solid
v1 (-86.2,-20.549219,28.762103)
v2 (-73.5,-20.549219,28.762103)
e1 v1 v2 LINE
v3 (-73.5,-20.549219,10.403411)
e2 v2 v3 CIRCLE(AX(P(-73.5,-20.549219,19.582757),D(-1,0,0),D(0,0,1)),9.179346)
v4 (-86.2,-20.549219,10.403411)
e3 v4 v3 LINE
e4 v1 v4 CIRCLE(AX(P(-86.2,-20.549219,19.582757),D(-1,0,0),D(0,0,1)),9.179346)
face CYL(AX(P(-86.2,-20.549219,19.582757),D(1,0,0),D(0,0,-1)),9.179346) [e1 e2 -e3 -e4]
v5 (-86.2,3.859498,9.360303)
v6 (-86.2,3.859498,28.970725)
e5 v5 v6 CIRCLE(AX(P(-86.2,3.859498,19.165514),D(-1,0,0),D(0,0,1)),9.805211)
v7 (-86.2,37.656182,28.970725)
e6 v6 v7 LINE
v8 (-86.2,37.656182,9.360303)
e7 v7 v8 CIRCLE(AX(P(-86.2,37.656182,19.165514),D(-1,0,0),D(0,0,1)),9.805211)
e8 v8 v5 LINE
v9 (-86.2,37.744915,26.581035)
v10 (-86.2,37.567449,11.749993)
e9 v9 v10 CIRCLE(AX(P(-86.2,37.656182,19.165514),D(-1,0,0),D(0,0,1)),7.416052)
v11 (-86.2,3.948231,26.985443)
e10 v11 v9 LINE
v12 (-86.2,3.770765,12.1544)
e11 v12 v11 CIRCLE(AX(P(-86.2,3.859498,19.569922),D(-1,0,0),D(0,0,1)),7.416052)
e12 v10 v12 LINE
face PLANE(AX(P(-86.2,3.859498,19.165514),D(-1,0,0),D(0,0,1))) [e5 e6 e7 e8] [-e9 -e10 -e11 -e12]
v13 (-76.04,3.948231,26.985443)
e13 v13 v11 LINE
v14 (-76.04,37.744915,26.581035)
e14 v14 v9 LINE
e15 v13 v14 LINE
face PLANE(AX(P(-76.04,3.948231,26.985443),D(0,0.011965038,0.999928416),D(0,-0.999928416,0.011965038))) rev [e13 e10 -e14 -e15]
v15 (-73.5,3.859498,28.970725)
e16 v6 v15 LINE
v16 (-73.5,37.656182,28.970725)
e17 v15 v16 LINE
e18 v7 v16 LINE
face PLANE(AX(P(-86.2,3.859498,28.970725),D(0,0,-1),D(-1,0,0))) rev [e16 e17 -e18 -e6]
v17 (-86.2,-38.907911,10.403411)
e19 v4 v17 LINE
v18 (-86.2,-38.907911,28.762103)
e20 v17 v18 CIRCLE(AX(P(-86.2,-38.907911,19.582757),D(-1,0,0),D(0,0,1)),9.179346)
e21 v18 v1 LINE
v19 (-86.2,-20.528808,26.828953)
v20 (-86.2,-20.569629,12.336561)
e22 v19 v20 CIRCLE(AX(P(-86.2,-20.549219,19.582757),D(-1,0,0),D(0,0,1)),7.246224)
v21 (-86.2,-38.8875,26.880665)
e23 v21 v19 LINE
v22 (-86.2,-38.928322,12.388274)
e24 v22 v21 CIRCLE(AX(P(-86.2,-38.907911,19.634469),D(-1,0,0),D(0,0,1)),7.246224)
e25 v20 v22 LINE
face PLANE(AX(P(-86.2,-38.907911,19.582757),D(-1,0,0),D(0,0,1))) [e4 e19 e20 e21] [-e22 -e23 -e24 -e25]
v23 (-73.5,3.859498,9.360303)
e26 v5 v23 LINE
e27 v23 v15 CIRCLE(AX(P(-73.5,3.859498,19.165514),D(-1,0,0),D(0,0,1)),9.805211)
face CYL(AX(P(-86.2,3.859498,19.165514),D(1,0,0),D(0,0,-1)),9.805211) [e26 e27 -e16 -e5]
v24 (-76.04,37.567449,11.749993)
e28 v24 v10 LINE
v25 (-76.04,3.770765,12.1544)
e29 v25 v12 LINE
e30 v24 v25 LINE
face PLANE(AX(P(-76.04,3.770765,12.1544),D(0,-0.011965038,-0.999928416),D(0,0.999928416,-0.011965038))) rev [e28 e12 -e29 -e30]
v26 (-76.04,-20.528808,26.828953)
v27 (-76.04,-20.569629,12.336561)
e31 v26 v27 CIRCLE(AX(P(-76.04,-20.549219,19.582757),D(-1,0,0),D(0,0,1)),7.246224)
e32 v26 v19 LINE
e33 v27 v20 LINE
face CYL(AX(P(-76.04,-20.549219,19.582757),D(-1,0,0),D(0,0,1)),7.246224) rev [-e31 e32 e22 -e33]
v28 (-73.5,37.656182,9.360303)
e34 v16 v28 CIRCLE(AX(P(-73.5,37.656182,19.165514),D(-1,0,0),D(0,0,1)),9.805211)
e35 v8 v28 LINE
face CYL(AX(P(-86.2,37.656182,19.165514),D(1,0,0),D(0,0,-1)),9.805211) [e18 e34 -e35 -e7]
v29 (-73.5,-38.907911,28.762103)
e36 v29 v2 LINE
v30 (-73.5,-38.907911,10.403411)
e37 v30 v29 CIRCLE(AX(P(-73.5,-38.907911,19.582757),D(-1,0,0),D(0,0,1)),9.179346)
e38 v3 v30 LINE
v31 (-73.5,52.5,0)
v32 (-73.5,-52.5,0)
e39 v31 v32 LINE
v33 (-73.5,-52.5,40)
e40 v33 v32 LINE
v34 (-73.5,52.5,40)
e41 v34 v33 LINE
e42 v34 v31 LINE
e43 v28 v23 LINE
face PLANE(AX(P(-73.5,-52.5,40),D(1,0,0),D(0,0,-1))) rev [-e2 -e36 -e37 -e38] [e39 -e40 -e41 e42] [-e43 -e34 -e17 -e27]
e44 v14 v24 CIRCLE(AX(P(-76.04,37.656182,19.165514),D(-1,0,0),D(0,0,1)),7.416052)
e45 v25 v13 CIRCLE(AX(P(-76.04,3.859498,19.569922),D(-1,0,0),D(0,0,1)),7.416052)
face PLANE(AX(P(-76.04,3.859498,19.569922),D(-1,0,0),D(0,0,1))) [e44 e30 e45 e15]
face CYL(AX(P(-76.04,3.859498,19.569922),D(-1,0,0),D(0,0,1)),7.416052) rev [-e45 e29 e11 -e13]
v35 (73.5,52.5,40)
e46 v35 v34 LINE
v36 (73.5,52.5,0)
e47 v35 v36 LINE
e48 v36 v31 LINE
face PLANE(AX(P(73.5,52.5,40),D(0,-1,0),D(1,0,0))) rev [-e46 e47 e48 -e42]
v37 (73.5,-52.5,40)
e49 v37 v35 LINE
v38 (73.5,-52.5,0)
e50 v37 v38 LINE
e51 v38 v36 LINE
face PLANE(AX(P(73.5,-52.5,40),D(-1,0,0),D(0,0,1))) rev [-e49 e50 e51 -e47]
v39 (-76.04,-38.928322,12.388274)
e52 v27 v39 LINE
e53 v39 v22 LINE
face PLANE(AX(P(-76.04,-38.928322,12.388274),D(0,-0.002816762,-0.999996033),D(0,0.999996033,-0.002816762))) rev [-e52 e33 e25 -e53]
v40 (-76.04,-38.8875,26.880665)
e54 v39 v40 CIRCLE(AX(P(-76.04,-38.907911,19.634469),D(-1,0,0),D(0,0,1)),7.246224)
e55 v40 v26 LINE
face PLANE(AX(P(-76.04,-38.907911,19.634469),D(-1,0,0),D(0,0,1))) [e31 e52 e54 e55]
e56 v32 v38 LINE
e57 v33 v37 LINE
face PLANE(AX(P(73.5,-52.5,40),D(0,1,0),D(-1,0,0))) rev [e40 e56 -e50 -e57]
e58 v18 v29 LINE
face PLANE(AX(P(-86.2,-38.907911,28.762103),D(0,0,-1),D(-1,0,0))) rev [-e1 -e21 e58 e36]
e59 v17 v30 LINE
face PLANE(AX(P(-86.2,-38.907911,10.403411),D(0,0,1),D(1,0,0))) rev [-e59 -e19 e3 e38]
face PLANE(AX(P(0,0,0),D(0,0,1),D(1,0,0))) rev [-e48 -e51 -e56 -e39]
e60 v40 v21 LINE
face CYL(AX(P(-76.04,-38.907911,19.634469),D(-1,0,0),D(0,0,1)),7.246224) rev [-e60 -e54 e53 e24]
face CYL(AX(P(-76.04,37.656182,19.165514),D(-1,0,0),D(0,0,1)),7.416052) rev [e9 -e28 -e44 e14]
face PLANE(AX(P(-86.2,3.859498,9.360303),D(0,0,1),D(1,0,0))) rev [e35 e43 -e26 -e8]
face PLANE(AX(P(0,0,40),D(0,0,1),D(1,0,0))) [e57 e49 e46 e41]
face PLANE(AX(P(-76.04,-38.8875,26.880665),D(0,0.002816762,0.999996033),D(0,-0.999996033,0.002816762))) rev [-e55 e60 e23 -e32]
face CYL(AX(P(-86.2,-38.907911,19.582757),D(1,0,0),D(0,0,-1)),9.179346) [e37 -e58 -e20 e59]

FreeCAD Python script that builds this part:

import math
import FreeCAD as App
import Part
import Sketcher


def add_polygon(sketch, points):
    """Adds a closed chain of lines whose ends are joined by coincident constraints."""
    first, n = sketch.GeometryCount, len(points)
    for a, b in zip(points, points[1:] + points[:1]):
        sketch.addGeometry(Part.LineSegment(App.Vector(*a, 0), App.Vector(*b, 0)), False)
    for i in range(n):
        sketch.addConstraint(Sketcher.Constraint("Coincident", first + i, 2, first + (i + 1) % n, 1))

doc = App.newDocument("Part")
body = doc.addObject("PartDesign::Body", "Body")

# Sketch on XY plane
sketch1 = body.newObject("Sketcher::SketchObject", "Sketch")
sketch1.AttachmentSupport = (doc.getObject("XY_Plane"), [""])
sketch1.MapMode = "FlatFace"
add_polygon(sketch1, [(-73.5, 52.5), (-73.5, -52.5), (73.5, -52.5), (73.5, 52.5)])  # lines 0-3
sketch1.addConstraint(Sketcher.Constraint("Vertical", 0))
sketch1.addConstraint(Sketcher.Constraint("Horizontal", 1))
sketch1.addConstraint(Sketcher.Constraint("Vertical", 2))
sketch1.addConstraint(Sketcher.Constraint("Horizontal", 3))
sketch1.addConstraint(Sketcher.Constraint("Symmetric", 0, 2, 2, 2, -1, 1))
sketch1.addConstraint(Sketcher.Constraint("DistanceX", 1, 1, 1, 2, 147.0))
sketch1.addConstraint(Sketcher.Constraint("DistanceY", 0, 2, 0, 1, 105.0))
pad1 = body.newObject("PartDesign::Pad", "Pad")
pad1.Profile = sketch1
pad1.Length = 40

# Sketch on YZ plane
sketch2 = body.newObject("Sketcher::SketchObject", "Sketch001")
sketch2.AttachmentSupport = (doc.getObject("YZ_Plane"), [""])
sketch2.MapMode = "FlatFace"
sketch2.AttachmentOffset = App.Placement(App.Vector(0, 0, -73.5), App.Rotation())
sketch2.addGeometry(Part.LineSegment(App.Vector(37.656182, 9.360303, 0), App.Vector(3.859498, 9.360303, 0)), False)
sketch2.addGeometry(Part.ArcOfCircle(Part.Circle(App.Vector(3.859498, 19.165514, 0), App.Vector(0, 0, 1), 9.805211), math.radians(90), math.radians(270)), False)
sketch2.addGeometry(Part.LineSegment(App.Vector(3.859498, 28.970725, 0), App.Vector(37.656182, 28.970725, 0)), False)
sketch2.addGeometry(Part.ArcOfCircle(Part.Circle(App.Vector(37.656182, 19.165514, 0), App.Vector(0, 0, 1), 9.805211), math.radians(-90), math.radians(90)), False)
sketch2.addConstraint(Sketcher.Constraint("Tangent", 0, 2, 1, 2))
sketch2.addConstraint(Sketcher.Constraint("Tangent", 1, 1, 2, 1))
sketch2.addConstraint(Sketcher.Constraint("Tangent", 2, 2, 3, 2))
sketch2.addConstraint(Sketcher.Constraint("Tangent", 3, 1, 0, 1))
sketch2.addConstraint(Sketcher.Constraint("Horizontal", 0))
sketch2.addConstraint(Sketcher.Constraint("Horizontal", 2))
sketch2.addConstraint(Sketcher.Constraint("Radius", 1, 9.805211))
sketch2.addConstraint(Sketcher.Constraint("DistanceX", 0, 2, 0, 1, 33.796684))
sketch2.addConstraint(Sketcher.Constraint("DistanceX", -1, 1, 1, 3, 3.859498))
sketch2.addConstraint(Sketcher.Constraint("DistanceY", -1, 1, 1, 3, 19.165514))
pad2 = body.newObject("PartDesign::Pad", "Pad001")
pad2.Profile = sketch2
pad2.Length = 12.7
pad2.Reversed = True

# Sketch on YZ plane
sketch3 = body.newObject("Sketcher::SketchObject", "Sketch002")
sketch3.AttachmentSupport = (doc.getObject("YZ_Plane"), [""])
sketch3.MapMode = "FlatFace"
sketch3.AttachmentOffset = App.Placement(App.Vector(0, 0, -86.2), App.Rotation())
sketch3.addGeometry(Part.LineSegment(App.Vector(37.567449, 11.749993, 0), App.Vector(3.770765, 12.1544, 0)), False)
sketch3.addGeometry(Part.ArcOfCircle(Part.Circle(App.Vector(3.859498, 19.569922, 0), App.Vector(0, 0, 1), 7.416052), math.radians(89.314437), math.radians(269.314437)), False)
sketch3.addGeometry(Part.LineSegment(App.Vector(3.948231, 26.985443, 0), App.Vector(37.744915, 26.581035, 0)), False)
sketch3.addGeometry(Part.ArcOfCircle(Part.Circle(App.Vector(37.656182, 19.165514, 0), App.Vector(0, 0, 1), 7.416052), math.radians(-90.685563), math.radians(89.314437)), False)
sketch3.addConstraint(Sketcher.Constraint("Tangent", 0, 2, 1, 2))
sketch3.addConstraint(Sketcher.Constraint("Tangent", 1, 1, 2, 1))
sketch3.addConstraint(Sketcher.Constraint("Tangent", 2, 2, 3, 2))
sketch3.addConstraint(Sketcher.Constraint("Tangent", 3, 1, 0, 1))
sketch3.addConstraint(Sketcher.Constraint("Equal", 1, 3))
sketch3.addConstraint(Sketcher.Constraint("Radius", 1, 7.416052))
sketch3.addConstraint(Sketcher.Constraint("DistanceY", -1, 1, 0, 2, 12.1544))
sketch3.addConstraint(Sketcher.Constraint("DistanceX", -1, 1, 1, 1, 3.948231))
sketch3.addConstraint(Sketcher.Constraint("DistanceX", -1, 1, 3, 1, 37.567449))
sketch3.addConstraint(Sketcher.Constraint("DistanceX", 1, 1, 3, 3, 33.707951))
pocket1 = body.newObject("PartDesign::Pocket", "Pocket")
pocket1.Profile = sketch3
pocket1.Length = 10.16
pocket1.Reversed = True

# Sketch on YZ plane
sketch4 = body.newObject("Sketcher::SketchObject", "Sketch003")
sketch4.AttachmentSupport = (doc.getObject("YZ_Plane"), [""])
sketch4.MapMode = "FlatFace"
sketch4.AttachmentOffset = App.Placement(App.Vector(0, 0, -73.5), App.Rotation())
sketch4.addGeometry(Part.LineSegment(App.Vector(-20.549219, 10.403411, 0), App.Vector(-38.907911, 10.403411, 0)), False)
sketch4.addGeometry(Part.ArcOfCircle(Part.Circle(App.Vector(-38.907911, 19.582757, 0), App.Vector(0, 0, 1), 9.179346), math.radians(90), math.radians(270)), False)
sketch4.addGeometry(Part.LineSegment(App.Vector(-38.907911, 28.762103, 0), App.Vector(-20.549219, 28.762103, 0)), False)
sketch4.addGeometry(Part.ArcOfCircle(Part.Circle(App.Vector(-20.549219, 19.582757, 0), App.Vector(0, 0, 1), 9.179346), math.radians(-90), math.radians(90)), False)
sketch4.addConstraint(Sketcher.Constraint("Tangent", 0, 2, 1, 2))
sketch4.addConstraint(Sketcher.Constraint("Tangent", 1, 1, 2, 1))
sketch4.addConstraint(Sketcher.Constraint("Tangent", 2, 2, 3, 2))
sketch4.addConstraint(Sketcher.Constraint("Tangent", 3, 1, 0, 1))
sketch4.addConstraint(Sketcher.Constraint("Horizontal", 0))
sketch4.addConstraint(Sketcher.Constraint("Horizontal", 2))
sketch4.addConstraint(Sketcher.Constraint("Radius", 1, 9.179346))
sketch4.addConstraint(Sketcher.Constraint("DistanceX", 0, 2, 0, 1, 18.358693))
sketch4.addConstraint(Sketcher.Constraint("DistanceX", 1, 3, -1, 1, 38.907911))
sketch4.addConstraint(Sketcher.Constraint("DistanceY", -1, 1, 0, 2, 10.403411))
pad3 = body.newObject("PartDesign::Pad", "Pad002")
pad3.Profile = sketch4
pad3.Length = 12.7
pad3.Reversed = True

# Sketch on YZ plane
sketch5 = body.newObject("Sketcher::SketchObject", "Sketch004")
sketch5.AttachmentSupport = (doc.getObject("YZ_Plane"), [""])
sketch5.MapMode = "FlatFace"
sketch5.AttachmentOffset = App.Placement(App.Vector(0, 0, -86.2), App.Rotation())
sketch5.addGeometry(Part.LineSegment(App.Vector(-20.569629, 12.336561, 0), App.Vector(-38.928322, 12.388274, 0)), False)
sketch5.addGeometry(Part.ArcOfCircle(Part.Circle(App.Vector(-38.907911, 19.634469, 0), App.Vector(0, 0, 1), 7.246224), math.radians(89.838611), math.radians(269.838611)), False)
sketch5.addGeometry(Part.LineSegment(App.Vector(-38.8875, 26.880665, 0), App.Vector(-20.528808, 26.828953, 0)), False)
sketch5.addGeometry(Part.ArcOfCircle(Part.Circle(App.Vector(-20.549219, 19.582757, 0), App.Vector(0, 0, 1), 7.246224), math.radians(-90.161389), math.radians(89.838611)), False)
sketch5.addConstraint(Sketcher.Constraint("Tangent", 0, 2, 1, 2))
sketch5.addConstraint(Sketcher.Constraint("Tangent", 1, 1, 2, 1))
sketch5.addConstraint(Sketcher.Constraint("Tangent", 2, 2, 3, 2))
sketch5.addConstraint(Sketcher.Constraint("Tangent", 3, 1, 0, 1))
sketch5.addConstraint(Sketcher.Constraint("Equal", 1, 3))
sketch5.addConstraint(Sketcher.Constraint("Radius", 1, 7.246224))
sketch5.addConstraint(Sketcher.Constraint("DistanceX", 1, 1, -1, 1, 38.8875))
sketch5.addConstraint(Sketcher.Constraint("DistanceX", 1, 3, -1, 1, 38.907911))
sketch5.addConstraint(Sketcher.Constraint("DistanceY", -1, 1, 1, 3, 19.634469))
sketch5.addConstraint(Sketcher.Constraint("DistanceX", 3, 3, -1, 1, 20.549219))
pocket2 = body.newObject("PartDesign::Pocket", "Pocket001")
pocket2.Profile = sketch5
pocket2.Length = 10.16
pocket2.Reversed = True

doc.recompute()
